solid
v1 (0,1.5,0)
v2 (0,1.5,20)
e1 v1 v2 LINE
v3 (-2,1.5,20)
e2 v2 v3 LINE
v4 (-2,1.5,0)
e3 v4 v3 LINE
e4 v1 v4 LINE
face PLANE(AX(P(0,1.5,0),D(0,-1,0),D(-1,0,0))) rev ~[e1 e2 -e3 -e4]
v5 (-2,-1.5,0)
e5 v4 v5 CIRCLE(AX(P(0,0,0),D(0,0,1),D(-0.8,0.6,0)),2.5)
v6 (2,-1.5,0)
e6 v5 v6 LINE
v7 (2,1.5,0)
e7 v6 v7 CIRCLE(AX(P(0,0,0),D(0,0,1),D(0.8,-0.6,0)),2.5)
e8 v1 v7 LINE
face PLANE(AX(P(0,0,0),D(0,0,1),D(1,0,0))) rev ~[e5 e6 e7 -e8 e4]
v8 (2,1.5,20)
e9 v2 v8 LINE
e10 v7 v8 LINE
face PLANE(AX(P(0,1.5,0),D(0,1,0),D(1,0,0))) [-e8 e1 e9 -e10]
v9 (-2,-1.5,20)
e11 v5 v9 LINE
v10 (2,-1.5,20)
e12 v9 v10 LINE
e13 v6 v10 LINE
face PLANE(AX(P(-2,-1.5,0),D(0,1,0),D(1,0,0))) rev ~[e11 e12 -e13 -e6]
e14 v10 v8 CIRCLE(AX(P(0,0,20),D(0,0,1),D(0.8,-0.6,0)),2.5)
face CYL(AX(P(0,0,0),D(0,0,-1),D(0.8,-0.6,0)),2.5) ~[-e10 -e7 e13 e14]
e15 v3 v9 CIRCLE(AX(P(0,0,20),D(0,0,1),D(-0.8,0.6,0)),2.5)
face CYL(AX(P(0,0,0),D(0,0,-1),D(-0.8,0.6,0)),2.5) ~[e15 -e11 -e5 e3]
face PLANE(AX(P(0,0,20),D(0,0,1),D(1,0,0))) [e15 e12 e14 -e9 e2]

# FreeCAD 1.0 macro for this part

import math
import FreeCAD as App
import Part
import Sketcher

V = App.Vector

doc = App.newDocument("Part")
body = doc.addObject("PartDesign::Body", "Body")

sketch1 = doc.addObject("Sketcher::SketchObject", "Sketch")
body.addObject(sketch1)
sketch1.AttachmentSupport = (doc.XY_Plane, [""])
sketch1.MapMode = "FlatFace"
sketch1.addGeometry(Part.LineSegment(V(2, 1.5, 0), V(-2, 1.5, 0)), False)
sketch1.addGeometry(Part.ArcOfCircle(Part.Circle(V(0, 0, 0), V(0, 0, 1), 2.5), math.radians(143), math.radians(217)), False)
sketch1.addGeometry(Part.LineSegment(V(-2, -1.5, 0), V(2, -1.5, 0)), False)
sketch1.addGeometry(Part.ArcOfCircle(Part.Circle(V(0, 0, 0), V(0, 0, 1), 2.5), math.radians(-37), math.radians(37)), False)
sketch1.addConstraint(Sketcher.Constraint("Coincident", 0, 2, 1, 1))
sketch1.addConstraint(Sketcher.Constraint("Coincident", 1, 2, 2, 1))
sketch1.addConstraint(Sketcher.Constraint("Coincident", 2, 2, 3, 1))
sketch1.addConstraint(Sketcher.Constraint("Coincident", 3, 2, 0, 1))
sketch1.addConstraint(Sketcher.Constraint("Horizontal", 0))
sketch1.addConstraint(Sketcher.Constraint("Horizontal", 2))
sketch1.addConstraint(Sketcher.Constraint("Coincident", 1, 3, -1, 1))
sketch1.addConstraint(Sketcher.Constraint("Coincident", 3, 3, -1, 1))
sketch1.addConstraint(Sketcher.Constraint("Equal", 1, 3))
sketch1.addConstraint(Sketcher.Constraint("Vertical", 0, 2, 1, 2))
sketch1.addConstraint(Sketcher.Constraint("Radius", 1, 2.5))
sketch1.addConstraint(Sketcher.Constraint("DistanceY", -1, 1, 0, 2, 1.5))
pad1 = doc.addObject("PartDesign::Pad", "Pad")
body.addObject(pad1)
pad1.Profile = sketch1
pad1.Length = 20

doc.recompute()
